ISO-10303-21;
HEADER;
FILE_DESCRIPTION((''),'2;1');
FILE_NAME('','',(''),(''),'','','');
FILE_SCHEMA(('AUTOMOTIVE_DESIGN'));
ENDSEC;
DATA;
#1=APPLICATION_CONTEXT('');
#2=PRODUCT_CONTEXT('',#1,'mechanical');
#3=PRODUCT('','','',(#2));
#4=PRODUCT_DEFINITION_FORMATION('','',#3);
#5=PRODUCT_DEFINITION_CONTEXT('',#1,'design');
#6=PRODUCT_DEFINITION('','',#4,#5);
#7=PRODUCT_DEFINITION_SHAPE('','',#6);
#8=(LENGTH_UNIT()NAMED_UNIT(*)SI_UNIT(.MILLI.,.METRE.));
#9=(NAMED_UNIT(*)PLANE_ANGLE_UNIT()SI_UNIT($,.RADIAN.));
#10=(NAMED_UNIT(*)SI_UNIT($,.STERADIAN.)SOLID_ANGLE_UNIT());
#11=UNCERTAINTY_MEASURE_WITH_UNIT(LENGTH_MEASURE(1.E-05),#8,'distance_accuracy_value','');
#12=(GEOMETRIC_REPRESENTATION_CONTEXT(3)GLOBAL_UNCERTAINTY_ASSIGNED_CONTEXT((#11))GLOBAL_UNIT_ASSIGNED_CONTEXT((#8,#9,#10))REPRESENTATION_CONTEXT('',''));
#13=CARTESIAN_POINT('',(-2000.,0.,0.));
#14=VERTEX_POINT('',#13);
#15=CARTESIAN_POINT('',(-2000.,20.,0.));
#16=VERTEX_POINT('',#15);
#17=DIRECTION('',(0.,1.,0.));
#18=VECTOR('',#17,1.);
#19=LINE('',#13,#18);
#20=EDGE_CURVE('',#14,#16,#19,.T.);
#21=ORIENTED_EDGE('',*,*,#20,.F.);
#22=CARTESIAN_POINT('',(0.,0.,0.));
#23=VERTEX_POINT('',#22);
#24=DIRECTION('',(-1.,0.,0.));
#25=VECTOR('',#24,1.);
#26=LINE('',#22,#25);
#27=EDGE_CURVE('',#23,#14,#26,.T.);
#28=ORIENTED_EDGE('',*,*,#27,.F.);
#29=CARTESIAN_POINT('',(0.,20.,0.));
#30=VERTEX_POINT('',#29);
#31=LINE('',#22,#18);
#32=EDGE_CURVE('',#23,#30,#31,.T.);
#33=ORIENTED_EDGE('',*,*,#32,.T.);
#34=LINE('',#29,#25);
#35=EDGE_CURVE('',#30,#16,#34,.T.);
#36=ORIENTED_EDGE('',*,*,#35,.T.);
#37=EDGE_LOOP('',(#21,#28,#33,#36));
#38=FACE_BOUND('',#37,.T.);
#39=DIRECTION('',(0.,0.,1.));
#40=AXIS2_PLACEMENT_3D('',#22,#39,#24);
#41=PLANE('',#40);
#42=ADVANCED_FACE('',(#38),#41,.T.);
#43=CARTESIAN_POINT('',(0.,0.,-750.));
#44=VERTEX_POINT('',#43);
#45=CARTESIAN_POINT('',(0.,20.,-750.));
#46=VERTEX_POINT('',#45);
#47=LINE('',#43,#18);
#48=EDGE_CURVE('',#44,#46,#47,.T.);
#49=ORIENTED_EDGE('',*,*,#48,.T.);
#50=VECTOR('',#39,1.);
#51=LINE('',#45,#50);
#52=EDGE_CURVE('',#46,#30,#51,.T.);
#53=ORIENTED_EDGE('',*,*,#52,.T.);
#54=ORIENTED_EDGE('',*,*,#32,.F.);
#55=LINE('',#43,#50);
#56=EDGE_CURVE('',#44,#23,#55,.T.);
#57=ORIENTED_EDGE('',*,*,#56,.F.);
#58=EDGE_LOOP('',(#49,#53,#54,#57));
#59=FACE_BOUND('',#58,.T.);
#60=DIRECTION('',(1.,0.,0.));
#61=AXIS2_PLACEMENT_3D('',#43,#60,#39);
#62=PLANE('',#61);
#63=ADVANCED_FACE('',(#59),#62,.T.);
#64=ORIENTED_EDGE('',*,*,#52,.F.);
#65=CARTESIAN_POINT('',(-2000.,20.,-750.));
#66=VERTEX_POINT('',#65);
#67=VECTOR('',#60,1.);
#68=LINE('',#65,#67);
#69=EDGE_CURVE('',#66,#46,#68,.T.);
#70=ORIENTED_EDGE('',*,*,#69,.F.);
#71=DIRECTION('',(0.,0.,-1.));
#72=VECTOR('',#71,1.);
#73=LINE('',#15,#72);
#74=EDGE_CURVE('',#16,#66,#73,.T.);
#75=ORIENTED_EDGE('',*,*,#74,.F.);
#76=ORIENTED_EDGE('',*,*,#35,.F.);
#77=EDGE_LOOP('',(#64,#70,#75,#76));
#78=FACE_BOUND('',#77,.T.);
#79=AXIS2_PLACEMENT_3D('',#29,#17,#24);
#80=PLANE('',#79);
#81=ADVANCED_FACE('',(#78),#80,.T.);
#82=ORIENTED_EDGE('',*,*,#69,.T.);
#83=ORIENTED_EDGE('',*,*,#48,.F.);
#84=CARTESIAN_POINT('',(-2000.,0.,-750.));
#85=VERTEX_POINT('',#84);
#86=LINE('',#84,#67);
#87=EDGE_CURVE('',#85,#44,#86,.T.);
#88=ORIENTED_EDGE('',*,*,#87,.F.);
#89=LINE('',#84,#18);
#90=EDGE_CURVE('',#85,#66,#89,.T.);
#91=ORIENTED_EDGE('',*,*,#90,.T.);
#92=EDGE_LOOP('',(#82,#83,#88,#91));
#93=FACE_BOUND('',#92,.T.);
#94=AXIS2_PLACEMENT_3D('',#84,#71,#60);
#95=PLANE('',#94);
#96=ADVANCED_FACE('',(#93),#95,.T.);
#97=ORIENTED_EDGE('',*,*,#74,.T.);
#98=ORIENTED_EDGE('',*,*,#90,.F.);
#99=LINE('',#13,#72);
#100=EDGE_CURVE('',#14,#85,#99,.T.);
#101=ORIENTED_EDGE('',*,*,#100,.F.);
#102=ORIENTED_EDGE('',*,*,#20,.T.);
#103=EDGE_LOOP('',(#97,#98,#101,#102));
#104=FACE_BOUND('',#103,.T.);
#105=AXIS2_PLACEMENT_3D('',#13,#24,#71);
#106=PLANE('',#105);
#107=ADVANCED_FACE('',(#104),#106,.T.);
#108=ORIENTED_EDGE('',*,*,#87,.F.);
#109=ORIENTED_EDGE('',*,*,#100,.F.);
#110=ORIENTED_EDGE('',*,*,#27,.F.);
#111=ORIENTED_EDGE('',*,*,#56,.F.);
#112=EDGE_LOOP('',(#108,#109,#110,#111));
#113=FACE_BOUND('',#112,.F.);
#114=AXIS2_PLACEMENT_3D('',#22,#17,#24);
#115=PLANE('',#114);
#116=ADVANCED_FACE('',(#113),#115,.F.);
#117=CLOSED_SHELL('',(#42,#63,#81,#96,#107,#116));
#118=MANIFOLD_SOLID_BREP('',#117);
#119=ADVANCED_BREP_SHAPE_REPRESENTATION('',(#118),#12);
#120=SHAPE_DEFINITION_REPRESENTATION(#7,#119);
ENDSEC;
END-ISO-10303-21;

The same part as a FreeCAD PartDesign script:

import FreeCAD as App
import Part
import Sketcher


def add_polygon(sketch, points):
    """Adds a closed chain of lines whose ends are joined by coincident constraints."""
    first, n = sketch.GeometryCount, len(points)
    for a, b in zip(points, points[1:] + points[:1]):
        sketch.addGeometry(Part.LineSegment(App.Vector(*a, 0), App.Vector(*b, 0)), False)
    for i in range(n):
        sketch.addConstraint(Sketcher.Constraint("Coincident", first + i, 2, first + (i + 1) % n, 1))

doc = App.newDocument("Part")
body = doc.addObject("PartDesign::Body", "Body")

# Sketch on XZ plane
sketch1 = body.newObject("Sketcher::SketchObject", "Sketch")
sketch1.AttachmentSupport = (doc.getObject("XZ_Plane"), [""])
sketch1.MapMode = "FlatFace"
add_polygon(sketch1, [(-2000, 0), (0, 0), (0, -750), (-2000, -750)])  # lines 0-3
sketch1.addConstraint(Sketcher.Constraint("Horizontal", 0))
sketch1.addConstraint(Sketcher.Constraint("Vertical", 1))
sketch1.addConstraint(Sketcher.Constraint("Horizontal", 2))
sketch1.addConstraint(Sketcher.Constraint("Vertical", 3))
sketch1.addConstraint(Sketcher.Constraint("Coincident", 0, 2, -1, 1))
sketch1.addConstraint(Sketcher.Constraint("DistanceX", 0, 1, 0, 2, 2000.0))
sketch1.addConstraint(Sketcher.Constraint("DistanceY", 1, 2, 1, 1, 750.0))
pad1 = body.newObject("PartDesign::Pad", "Pad")
pad1.Profile = sketch1
pad1.Length = 20
pad1.Reversed = True

doc.recompute()
